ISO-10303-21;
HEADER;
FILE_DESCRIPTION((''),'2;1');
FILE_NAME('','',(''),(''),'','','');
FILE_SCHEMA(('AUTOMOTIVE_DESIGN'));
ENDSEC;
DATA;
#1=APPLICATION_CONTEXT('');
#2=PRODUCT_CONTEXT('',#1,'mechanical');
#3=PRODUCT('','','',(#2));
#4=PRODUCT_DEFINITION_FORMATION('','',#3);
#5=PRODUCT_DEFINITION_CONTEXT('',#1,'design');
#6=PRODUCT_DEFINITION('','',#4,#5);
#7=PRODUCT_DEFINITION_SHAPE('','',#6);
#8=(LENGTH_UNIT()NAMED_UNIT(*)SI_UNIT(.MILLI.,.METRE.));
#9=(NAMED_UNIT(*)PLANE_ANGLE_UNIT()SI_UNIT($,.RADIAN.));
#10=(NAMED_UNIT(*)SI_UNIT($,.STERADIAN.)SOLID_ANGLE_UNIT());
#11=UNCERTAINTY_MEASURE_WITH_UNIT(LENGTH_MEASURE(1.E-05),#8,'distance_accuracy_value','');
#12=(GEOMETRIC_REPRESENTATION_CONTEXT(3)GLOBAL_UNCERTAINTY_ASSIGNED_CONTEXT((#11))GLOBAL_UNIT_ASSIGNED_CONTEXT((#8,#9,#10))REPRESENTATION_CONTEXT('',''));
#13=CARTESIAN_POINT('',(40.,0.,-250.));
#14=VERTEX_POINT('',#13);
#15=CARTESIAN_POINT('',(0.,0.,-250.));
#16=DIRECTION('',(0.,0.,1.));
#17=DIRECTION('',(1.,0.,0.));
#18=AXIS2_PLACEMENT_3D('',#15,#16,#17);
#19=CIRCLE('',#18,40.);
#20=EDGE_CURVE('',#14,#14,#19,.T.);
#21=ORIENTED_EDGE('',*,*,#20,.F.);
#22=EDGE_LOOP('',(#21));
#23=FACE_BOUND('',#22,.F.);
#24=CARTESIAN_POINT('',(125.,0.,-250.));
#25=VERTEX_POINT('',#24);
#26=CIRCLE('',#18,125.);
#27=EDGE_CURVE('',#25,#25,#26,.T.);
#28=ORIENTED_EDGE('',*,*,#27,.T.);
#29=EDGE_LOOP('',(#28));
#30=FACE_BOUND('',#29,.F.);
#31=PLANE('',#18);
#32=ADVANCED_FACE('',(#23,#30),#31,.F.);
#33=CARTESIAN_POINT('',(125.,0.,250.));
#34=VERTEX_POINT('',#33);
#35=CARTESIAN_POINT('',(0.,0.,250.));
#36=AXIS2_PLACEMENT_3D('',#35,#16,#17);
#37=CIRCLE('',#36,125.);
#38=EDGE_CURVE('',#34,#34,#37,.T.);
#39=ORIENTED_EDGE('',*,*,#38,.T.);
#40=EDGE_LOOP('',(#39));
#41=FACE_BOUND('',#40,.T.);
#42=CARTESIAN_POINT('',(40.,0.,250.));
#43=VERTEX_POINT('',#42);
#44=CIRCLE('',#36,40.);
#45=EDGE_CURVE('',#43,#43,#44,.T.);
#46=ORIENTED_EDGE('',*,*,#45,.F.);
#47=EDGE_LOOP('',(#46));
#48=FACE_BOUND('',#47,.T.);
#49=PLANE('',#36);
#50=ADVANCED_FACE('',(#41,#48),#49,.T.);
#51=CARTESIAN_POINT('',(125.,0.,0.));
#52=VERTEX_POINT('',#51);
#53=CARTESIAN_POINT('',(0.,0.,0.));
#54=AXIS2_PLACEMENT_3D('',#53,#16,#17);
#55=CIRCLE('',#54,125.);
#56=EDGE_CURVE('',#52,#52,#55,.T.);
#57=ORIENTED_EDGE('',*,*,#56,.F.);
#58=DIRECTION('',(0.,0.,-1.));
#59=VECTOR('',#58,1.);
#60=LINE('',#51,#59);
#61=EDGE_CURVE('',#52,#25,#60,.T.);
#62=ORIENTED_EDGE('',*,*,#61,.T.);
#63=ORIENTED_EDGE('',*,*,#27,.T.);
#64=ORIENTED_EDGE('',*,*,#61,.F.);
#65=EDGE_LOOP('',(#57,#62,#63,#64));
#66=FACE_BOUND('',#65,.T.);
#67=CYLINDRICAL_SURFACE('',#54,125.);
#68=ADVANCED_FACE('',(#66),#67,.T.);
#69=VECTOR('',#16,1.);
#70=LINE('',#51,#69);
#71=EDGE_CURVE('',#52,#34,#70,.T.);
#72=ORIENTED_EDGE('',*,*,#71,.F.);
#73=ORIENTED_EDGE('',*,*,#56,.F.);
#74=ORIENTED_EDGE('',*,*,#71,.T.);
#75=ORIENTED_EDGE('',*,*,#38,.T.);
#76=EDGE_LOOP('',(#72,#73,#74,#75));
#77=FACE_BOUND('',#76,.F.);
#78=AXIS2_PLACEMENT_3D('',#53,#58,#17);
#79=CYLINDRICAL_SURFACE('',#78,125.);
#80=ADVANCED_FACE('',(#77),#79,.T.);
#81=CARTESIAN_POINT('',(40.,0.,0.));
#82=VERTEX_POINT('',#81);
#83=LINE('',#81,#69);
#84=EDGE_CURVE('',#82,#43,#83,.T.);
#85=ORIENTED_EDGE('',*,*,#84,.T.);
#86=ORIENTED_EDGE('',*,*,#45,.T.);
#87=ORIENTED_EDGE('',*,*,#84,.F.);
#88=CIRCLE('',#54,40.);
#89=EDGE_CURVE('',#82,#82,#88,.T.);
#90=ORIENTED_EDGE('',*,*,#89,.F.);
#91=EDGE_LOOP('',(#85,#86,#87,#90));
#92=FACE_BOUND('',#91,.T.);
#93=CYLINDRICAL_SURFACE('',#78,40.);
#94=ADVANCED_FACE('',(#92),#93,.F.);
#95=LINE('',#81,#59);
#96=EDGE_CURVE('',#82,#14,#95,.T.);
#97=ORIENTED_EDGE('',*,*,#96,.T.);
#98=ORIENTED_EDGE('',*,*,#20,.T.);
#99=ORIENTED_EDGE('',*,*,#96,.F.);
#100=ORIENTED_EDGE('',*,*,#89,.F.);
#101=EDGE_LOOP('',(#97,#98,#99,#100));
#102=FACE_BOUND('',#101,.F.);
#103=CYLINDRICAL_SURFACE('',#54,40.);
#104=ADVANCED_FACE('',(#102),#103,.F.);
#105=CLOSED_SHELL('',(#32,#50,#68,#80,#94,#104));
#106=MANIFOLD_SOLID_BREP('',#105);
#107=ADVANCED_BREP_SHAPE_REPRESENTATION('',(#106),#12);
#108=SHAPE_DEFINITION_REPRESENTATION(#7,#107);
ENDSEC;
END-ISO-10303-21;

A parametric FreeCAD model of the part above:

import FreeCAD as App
import Part
import Sketcher
from FreeCAD import Vector

doc = App.newDocument("Part")
body = doc.addObject("PartDesign::Body", "Body")

sketch1 = doc.addObject("Sketcher::SketchObject", "Sketch")
body.addObject(sketch1)
sketch1.AttachmentSupport = (doc.XY_Plane, [""])
sketch1.MapMode = "FlatFace"
sketch1.addGeometry([
    Part.Circle(Vector(0, 0, 0), Vector(0, 0, 1), 125),
    Part.Circle(Vector(0, 0, 0), Vector(0, 0, 1), 40),
], False)
sketch1.addConstraint([
    Sketcher.Constraint("Coincident", 0, 3, -1, 1),
    Sketcher.Constraint("Coincident", 1, 3, -1, 1),
    Sketcher.Constraint("Diameter", 0, 250.0),
    Sketcher.Constraint("Diameter", 1, 80.0),
])
pad1 = doc.addObject("PartDesign::Pad", "Pad")
body.addObject(pad1)
pad1.Profile = sketch1
pad1.Length = 500
pad1.Midplane = True

doc.recompute()
